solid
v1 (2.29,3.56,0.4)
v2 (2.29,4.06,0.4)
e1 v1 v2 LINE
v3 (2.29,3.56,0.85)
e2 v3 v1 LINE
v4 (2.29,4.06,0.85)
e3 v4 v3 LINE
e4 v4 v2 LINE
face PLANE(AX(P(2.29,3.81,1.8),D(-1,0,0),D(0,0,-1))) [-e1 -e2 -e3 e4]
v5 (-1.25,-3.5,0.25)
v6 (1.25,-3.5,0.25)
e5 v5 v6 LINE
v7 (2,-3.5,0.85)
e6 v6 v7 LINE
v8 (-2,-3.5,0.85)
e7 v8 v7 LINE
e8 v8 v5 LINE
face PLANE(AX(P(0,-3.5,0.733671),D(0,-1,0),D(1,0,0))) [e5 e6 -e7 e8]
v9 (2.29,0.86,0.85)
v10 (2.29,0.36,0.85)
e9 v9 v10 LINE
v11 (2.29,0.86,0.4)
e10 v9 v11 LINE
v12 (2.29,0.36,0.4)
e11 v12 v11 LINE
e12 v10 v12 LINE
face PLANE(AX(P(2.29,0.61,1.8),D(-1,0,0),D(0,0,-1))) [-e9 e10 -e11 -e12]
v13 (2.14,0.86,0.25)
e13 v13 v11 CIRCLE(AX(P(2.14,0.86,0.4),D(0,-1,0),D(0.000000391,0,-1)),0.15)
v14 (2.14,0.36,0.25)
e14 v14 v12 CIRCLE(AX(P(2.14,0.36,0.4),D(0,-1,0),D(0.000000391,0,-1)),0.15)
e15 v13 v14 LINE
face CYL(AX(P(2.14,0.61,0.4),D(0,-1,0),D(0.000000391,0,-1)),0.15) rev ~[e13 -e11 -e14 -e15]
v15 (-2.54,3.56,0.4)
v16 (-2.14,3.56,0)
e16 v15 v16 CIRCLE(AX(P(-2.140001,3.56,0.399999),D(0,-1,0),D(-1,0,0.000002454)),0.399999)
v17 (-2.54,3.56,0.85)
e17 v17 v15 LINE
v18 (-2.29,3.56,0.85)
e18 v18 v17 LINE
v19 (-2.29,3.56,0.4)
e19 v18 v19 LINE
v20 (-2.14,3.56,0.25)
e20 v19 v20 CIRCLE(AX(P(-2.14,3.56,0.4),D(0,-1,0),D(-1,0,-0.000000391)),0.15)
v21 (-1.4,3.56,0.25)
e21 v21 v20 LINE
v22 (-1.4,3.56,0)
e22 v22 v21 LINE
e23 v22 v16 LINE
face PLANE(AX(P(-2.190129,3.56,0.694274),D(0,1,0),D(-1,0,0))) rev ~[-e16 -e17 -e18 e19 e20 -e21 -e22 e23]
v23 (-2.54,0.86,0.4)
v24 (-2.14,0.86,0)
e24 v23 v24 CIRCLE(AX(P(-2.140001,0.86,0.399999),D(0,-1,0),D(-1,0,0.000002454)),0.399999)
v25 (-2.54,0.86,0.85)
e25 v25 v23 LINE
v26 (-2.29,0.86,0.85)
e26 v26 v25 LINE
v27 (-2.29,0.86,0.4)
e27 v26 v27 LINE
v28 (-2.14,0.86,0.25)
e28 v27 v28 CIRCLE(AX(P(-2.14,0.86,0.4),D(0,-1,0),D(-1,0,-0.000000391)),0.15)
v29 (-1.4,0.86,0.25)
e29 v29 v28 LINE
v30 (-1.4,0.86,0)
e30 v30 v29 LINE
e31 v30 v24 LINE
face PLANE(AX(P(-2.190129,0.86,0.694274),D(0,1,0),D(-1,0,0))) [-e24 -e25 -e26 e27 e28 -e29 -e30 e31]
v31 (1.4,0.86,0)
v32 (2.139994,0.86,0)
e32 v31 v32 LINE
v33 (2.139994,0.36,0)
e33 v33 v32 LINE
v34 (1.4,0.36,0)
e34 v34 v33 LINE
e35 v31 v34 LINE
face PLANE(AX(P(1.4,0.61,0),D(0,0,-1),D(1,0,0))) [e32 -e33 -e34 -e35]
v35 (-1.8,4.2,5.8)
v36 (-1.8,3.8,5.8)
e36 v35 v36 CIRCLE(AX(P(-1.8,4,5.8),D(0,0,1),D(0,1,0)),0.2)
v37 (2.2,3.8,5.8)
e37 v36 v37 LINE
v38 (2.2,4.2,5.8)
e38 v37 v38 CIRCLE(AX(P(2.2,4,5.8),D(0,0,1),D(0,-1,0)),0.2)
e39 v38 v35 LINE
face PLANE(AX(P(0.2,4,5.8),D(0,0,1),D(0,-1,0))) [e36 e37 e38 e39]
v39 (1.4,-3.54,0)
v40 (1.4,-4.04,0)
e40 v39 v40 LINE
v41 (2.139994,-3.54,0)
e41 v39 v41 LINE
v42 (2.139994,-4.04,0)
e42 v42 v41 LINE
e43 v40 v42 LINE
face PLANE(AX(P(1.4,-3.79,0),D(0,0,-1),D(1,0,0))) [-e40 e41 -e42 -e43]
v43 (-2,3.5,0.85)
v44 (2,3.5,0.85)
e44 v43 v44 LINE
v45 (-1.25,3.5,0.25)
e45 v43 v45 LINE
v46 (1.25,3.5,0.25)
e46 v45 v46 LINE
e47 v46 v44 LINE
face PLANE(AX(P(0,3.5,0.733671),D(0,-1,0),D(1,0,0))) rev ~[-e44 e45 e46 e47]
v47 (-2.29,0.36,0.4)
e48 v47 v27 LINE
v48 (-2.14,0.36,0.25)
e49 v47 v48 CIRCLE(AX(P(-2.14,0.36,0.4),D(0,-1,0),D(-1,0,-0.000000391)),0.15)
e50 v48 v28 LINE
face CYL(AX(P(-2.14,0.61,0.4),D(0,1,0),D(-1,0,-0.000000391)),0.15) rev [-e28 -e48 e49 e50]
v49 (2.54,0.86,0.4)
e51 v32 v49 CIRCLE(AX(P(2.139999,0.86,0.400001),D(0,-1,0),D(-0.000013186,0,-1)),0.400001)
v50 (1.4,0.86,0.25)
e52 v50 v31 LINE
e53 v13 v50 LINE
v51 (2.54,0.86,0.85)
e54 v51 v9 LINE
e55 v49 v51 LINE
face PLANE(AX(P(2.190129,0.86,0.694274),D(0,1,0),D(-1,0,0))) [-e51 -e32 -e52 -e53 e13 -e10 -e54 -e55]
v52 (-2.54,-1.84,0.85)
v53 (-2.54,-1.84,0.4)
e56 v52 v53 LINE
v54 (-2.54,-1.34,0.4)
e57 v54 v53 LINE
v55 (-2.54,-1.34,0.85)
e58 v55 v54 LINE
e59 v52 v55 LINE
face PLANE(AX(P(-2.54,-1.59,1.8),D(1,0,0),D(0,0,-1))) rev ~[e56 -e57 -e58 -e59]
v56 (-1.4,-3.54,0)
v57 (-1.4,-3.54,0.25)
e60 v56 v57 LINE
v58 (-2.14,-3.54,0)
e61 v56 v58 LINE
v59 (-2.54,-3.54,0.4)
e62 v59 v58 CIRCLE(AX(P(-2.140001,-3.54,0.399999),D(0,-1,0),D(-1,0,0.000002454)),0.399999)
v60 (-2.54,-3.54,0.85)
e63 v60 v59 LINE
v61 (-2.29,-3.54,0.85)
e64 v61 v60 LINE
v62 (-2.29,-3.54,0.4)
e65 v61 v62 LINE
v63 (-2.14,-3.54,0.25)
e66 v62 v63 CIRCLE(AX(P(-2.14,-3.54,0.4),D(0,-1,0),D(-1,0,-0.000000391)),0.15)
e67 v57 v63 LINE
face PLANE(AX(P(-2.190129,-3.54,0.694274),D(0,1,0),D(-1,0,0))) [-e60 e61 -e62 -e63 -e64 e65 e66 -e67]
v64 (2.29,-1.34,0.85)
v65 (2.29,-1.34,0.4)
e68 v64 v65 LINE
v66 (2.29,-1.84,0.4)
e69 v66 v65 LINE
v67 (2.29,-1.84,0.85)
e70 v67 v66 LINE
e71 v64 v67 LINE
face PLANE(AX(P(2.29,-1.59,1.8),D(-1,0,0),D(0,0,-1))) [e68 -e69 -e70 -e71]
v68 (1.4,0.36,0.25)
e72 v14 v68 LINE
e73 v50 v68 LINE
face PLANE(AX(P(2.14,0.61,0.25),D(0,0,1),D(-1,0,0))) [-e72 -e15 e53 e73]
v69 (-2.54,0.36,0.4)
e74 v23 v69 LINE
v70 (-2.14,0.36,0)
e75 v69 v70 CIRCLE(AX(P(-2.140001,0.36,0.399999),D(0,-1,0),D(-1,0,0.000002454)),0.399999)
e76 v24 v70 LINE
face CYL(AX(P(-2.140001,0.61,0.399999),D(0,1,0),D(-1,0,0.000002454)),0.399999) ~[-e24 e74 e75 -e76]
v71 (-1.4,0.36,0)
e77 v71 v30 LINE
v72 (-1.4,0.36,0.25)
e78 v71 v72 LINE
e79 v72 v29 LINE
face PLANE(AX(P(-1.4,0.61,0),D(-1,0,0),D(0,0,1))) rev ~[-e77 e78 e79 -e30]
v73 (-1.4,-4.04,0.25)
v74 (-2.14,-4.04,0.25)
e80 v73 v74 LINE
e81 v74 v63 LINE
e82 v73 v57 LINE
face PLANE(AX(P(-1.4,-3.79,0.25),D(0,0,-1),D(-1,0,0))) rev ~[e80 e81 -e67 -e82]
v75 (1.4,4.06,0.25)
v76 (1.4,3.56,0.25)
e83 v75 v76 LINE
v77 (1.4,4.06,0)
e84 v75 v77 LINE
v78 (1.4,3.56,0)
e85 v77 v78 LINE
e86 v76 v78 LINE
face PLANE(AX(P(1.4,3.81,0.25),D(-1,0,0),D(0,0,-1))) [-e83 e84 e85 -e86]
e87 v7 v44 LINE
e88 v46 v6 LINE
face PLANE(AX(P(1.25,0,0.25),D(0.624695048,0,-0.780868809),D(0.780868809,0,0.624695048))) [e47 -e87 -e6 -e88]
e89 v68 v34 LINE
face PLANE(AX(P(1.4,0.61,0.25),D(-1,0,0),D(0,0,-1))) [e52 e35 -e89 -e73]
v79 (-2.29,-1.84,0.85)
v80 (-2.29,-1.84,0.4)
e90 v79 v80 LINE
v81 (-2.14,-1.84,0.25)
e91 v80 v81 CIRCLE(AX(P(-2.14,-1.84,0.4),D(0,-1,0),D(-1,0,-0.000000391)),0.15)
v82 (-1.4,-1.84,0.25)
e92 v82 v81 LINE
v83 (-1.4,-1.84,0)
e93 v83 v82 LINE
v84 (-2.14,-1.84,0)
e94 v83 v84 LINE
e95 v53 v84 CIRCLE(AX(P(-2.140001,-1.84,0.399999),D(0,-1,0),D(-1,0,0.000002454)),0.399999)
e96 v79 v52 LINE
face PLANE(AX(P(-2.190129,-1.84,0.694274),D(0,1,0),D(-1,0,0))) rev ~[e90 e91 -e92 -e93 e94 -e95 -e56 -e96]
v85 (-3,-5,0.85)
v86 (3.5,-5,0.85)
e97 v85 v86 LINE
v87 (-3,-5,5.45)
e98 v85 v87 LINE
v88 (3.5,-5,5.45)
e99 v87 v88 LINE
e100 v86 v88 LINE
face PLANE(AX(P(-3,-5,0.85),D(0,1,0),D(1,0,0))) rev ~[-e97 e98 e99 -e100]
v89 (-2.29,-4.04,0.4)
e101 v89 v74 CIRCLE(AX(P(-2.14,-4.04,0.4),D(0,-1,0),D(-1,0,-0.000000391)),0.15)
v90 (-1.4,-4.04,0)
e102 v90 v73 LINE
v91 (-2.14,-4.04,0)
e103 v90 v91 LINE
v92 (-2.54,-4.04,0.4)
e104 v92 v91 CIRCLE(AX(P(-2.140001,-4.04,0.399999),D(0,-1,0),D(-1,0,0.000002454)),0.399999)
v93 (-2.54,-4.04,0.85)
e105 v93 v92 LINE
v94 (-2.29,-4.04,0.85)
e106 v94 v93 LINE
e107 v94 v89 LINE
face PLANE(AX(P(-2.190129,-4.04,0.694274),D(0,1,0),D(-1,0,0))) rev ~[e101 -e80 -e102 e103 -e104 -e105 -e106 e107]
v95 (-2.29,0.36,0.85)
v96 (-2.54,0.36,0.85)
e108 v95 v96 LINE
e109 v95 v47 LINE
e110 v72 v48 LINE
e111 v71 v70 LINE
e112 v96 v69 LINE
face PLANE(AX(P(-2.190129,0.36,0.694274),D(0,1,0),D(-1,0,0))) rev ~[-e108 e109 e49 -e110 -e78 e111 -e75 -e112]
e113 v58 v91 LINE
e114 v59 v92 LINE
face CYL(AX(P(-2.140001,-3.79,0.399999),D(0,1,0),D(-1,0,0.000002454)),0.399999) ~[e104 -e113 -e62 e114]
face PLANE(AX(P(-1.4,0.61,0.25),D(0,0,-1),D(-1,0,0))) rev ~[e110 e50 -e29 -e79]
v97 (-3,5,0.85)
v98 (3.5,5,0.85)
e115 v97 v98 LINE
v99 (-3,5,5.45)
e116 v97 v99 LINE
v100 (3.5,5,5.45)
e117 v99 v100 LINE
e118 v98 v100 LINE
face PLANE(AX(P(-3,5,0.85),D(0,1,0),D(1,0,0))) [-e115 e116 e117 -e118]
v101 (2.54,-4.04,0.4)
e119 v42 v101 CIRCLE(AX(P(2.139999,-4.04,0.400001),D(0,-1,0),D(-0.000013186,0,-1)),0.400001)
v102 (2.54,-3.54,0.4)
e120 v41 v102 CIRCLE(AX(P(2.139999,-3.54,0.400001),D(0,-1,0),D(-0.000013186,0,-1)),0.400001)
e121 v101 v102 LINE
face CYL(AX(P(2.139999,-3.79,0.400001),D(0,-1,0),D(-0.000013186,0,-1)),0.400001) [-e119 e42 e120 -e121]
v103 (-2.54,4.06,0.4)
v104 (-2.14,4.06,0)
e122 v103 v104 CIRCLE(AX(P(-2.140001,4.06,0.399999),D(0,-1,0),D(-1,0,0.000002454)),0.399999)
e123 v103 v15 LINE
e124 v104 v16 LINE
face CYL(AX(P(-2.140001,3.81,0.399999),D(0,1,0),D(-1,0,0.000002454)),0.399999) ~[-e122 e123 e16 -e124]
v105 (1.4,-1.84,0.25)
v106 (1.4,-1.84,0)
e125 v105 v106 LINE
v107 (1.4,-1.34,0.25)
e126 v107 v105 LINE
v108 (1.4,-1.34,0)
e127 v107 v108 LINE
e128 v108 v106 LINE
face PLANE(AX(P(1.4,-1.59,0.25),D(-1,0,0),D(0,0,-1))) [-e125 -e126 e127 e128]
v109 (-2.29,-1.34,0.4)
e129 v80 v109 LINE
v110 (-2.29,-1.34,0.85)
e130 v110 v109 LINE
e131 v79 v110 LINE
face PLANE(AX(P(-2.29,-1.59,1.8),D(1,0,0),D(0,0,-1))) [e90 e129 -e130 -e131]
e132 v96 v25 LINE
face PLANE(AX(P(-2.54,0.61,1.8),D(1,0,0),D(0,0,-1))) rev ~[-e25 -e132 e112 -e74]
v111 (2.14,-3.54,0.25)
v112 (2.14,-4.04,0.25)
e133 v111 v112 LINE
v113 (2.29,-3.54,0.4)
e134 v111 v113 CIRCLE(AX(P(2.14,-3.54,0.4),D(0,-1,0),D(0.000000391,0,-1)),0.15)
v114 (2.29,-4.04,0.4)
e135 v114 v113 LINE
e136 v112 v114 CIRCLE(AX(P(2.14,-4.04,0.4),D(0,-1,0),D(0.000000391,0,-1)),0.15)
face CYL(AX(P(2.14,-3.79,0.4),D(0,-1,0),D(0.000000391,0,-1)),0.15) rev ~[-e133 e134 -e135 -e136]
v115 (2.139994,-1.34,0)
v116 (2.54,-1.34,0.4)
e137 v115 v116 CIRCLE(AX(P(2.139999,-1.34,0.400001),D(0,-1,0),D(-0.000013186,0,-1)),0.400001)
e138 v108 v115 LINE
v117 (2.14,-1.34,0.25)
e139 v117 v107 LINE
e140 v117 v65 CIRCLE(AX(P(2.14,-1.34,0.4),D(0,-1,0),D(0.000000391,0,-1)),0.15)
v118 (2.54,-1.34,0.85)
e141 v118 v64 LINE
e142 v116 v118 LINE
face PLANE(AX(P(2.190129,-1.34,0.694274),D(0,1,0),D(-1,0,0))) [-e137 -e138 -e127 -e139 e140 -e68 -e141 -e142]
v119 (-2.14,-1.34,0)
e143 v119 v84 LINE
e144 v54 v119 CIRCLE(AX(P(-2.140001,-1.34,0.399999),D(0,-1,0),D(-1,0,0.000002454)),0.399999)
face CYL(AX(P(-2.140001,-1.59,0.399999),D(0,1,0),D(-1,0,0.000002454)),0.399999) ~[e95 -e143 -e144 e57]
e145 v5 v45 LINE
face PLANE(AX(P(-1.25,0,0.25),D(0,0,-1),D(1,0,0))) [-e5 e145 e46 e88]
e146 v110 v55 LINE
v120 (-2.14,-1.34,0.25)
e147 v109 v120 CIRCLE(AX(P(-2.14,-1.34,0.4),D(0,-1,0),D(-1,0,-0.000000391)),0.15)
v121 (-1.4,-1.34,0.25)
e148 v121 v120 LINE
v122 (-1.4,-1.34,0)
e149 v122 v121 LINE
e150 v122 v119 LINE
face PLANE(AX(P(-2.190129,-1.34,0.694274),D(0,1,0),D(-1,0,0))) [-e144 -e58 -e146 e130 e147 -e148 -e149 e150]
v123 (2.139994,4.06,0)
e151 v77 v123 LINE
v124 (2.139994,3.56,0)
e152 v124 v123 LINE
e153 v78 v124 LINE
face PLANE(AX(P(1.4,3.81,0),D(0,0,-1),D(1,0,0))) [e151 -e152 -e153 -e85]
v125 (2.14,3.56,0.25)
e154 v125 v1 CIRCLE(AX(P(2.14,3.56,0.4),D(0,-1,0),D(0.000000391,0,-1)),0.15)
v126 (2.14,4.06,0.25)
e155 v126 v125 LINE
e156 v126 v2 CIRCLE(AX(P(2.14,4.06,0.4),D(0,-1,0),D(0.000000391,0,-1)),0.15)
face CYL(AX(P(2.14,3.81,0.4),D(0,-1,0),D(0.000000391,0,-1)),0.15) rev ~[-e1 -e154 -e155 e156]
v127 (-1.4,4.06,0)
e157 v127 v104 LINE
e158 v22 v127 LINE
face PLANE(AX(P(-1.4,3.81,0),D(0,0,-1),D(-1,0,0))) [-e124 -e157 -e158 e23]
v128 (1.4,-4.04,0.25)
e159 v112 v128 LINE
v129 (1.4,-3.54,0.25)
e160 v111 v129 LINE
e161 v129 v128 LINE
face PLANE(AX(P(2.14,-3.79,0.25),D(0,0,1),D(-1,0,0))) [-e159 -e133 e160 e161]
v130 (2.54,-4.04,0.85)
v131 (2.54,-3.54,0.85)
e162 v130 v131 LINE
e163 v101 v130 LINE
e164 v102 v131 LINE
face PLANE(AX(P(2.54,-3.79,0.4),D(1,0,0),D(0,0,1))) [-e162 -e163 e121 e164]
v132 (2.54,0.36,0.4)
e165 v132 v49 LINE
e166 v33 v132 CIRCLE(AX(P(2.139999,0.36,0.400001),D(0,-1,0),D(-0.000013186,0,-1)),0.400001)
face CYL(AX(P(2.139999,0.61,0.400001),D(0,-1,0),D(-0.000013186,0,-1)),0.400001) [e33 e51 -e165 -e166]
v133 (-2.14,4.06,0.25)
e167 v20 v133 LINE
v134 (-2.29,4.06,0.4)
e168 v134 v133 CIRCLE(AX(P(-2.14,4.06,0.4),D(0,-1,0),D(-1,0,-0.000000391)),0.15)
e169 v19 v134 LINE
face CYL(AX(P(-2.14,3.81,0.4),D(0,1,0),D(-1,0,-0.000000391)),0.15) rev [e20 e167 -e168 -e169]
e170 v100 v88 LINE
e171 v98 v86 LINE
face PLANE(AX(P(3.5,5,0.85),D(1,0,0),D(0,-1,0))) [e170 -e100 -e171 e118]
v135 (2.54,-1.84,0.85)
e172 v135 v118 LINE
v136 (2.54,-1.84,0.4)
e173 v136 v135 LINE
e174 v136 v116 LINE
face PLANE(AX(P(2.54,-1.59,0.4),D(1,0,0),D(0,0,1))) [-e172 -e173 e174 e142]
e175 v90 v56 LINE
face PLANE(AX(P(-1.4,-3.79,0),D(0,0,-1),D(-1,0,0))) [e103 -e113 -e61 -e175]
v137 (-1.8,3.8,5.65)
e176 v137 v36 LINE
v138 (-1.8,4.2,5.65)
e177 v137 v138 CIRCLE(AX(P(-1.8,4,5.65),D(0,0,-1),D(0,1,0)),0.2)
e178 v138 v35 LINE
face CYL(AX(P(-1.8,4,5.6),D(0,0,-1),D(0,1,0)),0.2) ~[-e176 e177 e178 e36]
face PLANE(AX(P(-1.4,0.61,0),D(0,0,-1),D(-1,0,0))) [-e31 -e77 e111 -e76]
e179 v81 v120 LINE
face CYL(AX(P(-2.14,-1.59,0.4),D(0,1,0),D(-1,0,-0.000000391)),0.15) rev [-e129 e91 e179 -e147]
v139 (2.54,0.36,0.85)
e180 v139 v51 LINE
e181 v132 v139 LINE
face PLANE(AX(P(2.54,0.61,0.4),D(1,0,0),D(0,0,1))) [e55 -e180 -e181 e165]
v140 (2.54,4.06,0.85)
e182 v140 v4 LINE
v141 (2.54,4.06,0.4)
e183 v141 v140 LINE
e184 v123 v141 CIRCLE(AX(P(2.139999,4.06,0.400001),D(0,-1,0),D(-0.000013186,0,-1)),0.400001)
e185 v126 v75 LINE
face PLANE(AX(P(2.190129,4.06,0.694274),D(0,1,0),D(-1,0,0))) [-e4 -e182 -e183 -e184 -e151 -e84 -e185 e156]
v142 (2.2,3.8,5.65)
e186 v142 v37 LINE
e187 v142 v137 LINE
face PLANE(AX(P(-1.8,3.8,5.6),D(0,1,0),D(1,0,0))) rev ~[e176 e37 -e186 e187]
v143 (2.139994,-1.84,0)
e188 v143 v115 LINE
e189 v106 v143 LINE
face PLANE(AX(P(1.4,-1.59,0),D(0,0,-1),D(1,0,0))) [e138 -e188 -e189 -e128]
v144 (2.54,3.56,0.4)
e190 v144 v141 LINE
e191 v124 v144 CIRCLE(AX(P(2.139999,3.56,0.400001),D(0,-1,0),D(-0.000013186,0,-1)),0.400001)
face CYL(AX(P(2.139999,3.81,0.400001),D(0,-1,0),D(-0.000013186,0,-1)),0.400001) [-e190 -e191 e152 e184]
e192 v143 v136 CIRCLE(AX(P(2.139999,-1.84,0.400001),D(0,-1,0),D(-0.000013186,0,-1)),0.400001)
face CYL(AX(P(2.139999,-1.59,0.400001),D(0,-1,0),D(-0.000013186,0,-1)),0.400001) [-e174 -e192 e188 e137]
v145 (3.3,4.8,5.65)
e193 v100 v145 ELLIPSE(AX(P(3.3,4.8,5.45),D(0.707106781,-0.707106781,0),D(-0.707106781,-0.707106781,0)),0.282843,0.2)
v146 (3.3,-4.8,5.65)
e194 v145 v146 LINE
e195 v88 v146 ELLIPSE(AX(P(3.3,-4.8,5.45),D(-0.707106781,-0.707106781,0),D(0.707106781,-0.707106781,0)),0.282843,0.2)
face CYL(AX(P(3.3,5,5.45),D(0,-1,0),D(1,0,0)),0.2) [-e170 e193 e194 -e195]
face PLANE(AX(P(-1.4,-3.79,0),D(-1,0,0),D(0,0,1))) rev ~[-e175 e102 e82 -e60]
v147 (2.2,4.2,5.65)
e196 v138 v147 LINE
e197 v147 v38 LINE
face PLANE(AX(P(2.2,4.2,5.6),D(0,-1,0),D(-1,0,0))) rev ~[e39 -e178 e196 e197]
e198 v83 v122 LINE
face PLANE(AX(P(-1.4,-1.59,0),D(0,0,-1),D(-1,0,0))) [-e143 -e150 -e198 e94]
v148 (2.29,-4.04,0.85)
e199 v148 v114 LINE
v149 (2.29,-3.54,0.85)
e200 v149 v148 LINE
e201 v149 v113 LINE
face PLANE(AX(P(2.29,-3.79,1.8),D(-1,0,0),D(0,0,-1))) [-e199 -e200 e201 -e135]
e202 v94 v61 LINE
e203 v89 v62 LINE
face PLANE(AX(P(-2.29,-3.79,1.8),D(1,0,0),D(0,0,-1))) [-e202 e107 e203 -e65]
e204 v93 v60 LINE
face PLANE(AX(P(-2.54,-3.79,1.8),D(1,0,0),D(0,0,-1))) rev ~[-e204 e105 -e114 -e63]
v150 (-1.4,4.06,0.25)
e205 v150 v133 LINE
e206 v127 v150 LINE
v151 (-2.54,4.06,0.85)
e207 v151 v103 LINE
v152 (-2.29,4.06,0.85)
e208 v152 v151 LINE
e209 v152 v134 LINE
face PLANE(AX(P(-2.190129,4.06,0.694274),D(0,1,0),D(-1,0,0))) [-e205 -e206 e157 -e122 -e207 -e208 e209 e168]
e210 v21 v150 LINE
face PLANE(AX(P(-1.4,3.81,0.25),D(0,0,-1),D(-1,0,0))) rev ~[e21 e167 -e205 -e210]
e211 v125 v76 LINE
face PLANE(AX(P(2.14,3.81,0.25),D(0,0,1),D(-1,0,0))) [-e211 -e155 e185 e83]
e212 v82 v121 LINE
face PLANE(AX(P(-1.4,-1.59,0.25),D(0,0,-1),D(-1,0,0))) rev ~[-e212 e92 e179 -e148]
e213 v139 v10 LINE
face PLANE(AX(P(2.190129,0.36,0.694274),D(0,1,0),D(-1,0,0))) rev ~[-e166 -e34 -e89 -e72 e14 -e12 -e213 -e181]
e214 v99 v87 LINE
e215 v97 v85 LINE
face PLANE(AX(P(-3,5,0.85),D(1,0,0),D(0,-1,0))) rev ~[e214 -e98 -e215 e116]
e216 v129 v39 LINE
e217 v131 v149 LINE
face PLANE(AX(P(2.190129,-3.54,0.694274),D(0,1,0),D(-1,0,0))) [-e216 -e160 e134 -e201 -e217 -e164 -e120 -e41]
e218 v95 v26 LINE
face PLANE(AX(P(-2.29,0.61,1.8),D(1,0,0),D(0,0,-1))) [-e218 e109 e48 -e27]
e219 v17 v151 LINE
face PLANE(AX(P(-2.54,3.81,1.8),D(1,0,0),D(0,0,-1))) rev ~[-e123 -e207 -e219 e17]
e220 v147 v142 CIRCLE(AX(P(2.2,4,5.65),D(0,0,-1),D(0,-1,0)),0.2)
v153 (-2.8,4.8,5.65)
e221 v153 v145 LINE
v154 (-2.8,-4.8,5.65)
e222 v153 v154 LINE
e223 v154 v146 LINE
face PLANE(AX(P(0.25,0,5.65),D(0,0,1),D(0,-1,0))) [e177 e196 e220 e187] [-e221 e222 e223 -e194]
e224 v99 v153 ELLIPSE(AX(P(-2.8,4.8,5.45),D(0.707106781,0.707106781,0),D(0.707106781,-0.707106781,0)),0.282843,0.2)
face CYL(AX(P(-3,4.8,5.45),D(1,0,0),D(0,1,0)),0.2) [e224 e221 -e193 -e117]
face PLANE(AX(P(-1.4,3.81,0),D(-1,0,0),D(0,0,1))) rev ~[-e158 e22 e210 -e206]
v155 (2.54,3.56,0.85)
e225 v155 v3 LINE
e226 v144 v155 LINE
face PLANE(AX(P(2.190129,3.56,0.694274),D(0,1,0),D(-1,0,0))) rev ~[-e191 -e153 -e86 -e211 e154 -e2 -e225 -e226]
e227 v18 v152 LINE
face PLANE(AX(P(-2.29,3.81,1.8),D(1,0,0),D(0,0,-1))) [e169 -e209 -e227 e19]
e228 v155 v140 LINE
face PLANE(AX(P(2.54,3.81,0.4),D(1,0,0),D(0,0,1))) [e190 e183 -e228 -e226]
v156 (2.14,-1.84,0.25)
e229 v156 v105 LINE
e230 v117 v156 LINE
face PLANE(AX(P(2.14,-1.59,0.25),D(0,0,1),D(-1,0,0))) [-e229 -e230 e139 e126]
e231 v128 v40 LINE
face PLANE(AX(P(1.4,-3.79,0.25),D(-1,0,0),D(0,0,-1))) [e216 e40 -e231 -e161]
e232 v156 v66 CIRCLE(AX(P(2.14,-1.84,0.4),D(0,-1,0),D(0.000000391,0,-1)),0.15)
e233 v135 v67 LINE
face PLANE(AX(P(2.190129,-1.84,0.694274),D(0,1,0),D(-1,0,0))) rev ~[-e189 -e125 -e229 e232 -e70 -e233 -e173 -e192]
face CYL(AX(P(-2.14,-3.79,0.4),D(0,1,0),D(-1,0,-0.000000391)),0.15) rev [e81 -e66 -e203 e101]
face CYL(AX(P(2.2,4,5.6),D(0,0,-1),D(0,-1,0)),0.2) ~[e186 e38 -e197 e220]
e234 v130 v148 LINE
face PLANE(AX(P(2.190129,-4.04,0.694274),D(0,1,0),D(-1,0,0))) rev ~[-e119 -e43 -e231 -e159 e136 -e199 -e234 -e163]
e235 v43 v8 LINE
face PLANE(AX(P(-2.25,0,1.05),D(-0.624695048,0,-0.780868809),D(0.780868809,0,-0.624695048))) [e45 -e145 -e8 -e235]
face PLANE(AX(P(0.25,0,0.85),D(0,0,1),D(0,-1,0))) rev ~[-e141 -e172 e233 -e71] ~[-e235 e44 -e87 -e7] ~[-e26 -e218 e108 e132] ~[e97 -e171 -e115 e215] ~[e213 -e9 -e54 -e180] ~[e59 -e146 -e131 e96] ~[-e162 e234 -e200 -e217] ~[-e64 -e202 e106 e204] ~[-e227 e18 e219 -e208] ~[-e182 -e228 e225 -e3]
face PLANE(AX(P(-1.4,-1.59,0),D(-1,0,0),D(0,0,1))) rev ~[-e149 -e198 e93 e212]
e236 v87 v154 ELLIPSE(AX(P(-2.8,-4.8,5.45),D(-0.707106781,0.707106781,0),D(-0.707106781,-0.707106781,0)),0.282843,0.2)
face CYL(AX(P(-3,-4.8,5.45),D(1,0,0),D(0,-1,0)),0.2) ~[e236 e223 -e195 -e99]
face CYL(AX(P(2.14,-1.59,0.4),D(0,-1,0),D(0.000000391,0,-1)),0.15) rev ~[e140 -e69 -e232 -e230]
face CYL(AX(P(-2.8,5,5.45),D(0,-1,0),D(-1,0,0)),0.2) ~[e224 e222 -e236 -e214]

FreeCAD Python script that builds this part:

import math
import FreeCAD as App
import Part
import Sketcher

V = App.Vector


def edges_at(feature, points):
    """Names of the edges that pass closest to the given points."""
    edges = feature.Shape.Edges
    near = lambda p: min(range(len(edges)), key=lambda i: edges[i].distToShape(Part.Vertex(*p))[0])
    return sorted({f"Edge{near(p) + 1}" for p in points})


def add_polygon(sketch, points):
    """Adds a closed chain of lines whose ends are joined by coincident constraints."""
    first, n = sketch.GeometryCount, len(points)
    for a, b in zip(points, points[1:] + points[:1]):
        sketch.addGeometry(Part.LineSegment(App.Vector(*a, 0), App.Vector(*b, 0)), False)
    for i in range(n):
        sketch.addConstraint(Sketcher.Constraint("Coincident", first + i, 2, first + (i + 1) % n, 1))

doc = App.newDocument("Part")
body = doc.addObject("PartDesign::Body", "Body")
body.AllowCompound = True

sketch1 = doc.addObject("Sketcher::SketchObject", "Sketch")
body.addObject(sketch1)
sketch1.AttachmentSupport = (doc.XZ_Plane, [""])
sketch1.MapMode = "FlatFace"
sketch1.AttachmentOffset = App.Placement(V(0, 0, 1.59), App.Rotation())
sketch1.addGeometry(Part.LineSegment(V(-2.29, 1.8, 0), V(-2.54, 1.8, 0)), False)
sketch1.addGeometry(Part.LineSegment(V(-2.54, 1.8, 0), V(-2.54, 0.4, 0)), False)
sketch1.addGeometry(Part.ArcOfCircle(Part.Circle(V(-2.14, 0.4, 0), V(0, 0, 1), 0.4), math.radians(180), math.radians(270)), False)
sketch1.addGeometry(Part.LineSegment(V(-2.14, 0, 0), V(-1.4, 0, 0)), False)
sketch1.addGeometry(Part.LineSegment(V(-1.4, 0, 0), V(-1.4, 0.25, 0)), False)
sketch1.addGeometry(Part.LineSegment(V(-1.4, 0.25, 0), V(-2.14, 0.25, 0)), False)
sketch1.addGeometry(Part.ArcOfCircle(Part.Circle(V(-2.14, 0.4, 0), V(0, 0, 1), 0.15), math.radians(-180), math.radians(-90)), False)
sketch1.addGeometry(Part.LineSegment(V(-2.29, 0.4, 0), V(-2.29, 1.8, 0)), False)
sketch1.addGeometry(Part.ArcOfCircle(Part.Circle(V(2.14, 0.4, 0), V(0, 0, 1), 0.15), math.radians(-90), math.radians(0)), False)
sketch1.addGeometry(Part.LineSegment(V(2.14, 0.25, 0), V(1.4, 0.25, 0)), False)
sketch1.addGeometry(Part.LineSegment(V(1.4, 0.25, 0), V(1.4, 0, 0)), False)
sketch1.addGeometry(Part.LineSegment(V(1.4, 0, 0), V(2.14, 0, 0)), False)
sketch1.addGeometry(Part.ArcOfCircle(Part.Circle(V(2.14, 0.4, 0), V(0, 0, 1), 0.4), math.radians(-90), math.radians(0)), False)
sketch1.addGeometry(Part.LineSegment(V(2.54, 0.4, 0), V(2.54, 1.8, 0)), False)
sketch1.addGeometry(Part.LineSegment(V(2.54, 1.8, 0), V(2.29, 1.8, 0)), False)
sketch1.addGeometry(Part.LineSegment(V(2.29, 1.8, 0), V(2.29, 0.4, 0)), False)
sketch1.addConstraint(Sketcher.Constraint("Coincident", 0, 2, 1, 1))
sketch1.addConstraint(Sketcher.Constraint("Coincident", 1, 2, 2, 1))
sketch1.addConstraint(Sketcher.Constraint("Coincident", 2, 2, 3, 1))
sketch1.addConstraint(Sketcher.Constraint("Coincident", 3, 2, 4, 1))
sketch1.addConstraint(Sketcher.Constraint("Coincident", 4, 2, 5, 1))
sketch1.addConstraint(Sketcher.Constraint("Tangent", 5, 2, 6, 2))
sketch1.addConstraint(Sketcher.Constraint("Tangent", 6, 1, 7, 1))
sketch1.addConstraint(Sketcher.Constraint("Coincident", 7, 2, 0, 1))
sketch1.addConstraint(Sketcher.Constraint("Tangent", 8, 1, 9, 1))
sketch1.addConstraint(Sketcher.Constraint("Coincident", 9, 2, 10, 1))
sketch1.addConstraint(Sketcher.Constraint("Coincident", 10, 2, 11, 1))
sketch1.addConstraint(Sketcher.Constraint("Coincident", 11, 2, 12, 1))
sketch1.addConstraint(Sketcher.Constraint("Tangent", 12, 2, 13, 1))
sketch1.addConstraint(Sketcher.Constraint("Coincident", 13, 2, 14, 1))
sketch1.addConstraint(Sketcher.Constraint("Coincident", 14, 2, 15, 1))
sketch1.addConstraint(Sketcher.Constraint("Tangent", 15, 2, 8, 2))
sketch1.addConstraint(Sketcher.Constraint("Horizontal", 0))
sketch1.addConstraint(Sketcher.Constraint("Vertical", 1))
sketch1.addConstraint(Sketcher.Constraint("Horizontal", 3))
sketch1.addConstraint(Sketcher.Constraint("Vertical", 4))
sketch1.addConstraint(Sketcher.Constraint("Horizontal", 5))
sketch1.addConstraint(Sketcher.Constraint("Vertical", 7))
sketch1.addConstraint(Sketcher.Constraint("Horizontal", 9))
sketch1.addConstraint(Sketcher.Constraint("Vertical", 10))
sketch1.addConstraint(Sketcher.Constraint("Horizontal", 11))
sketch1.addConstraint(Sketcher.Constraint("Vertical", 13))
sketch1.addConstraint(Sketcher.Constraint("Horizontal", 14))
sketch1.addConstraint(Sketcher.Constraint("Vertical", 15))
sketch1.addConstraint(Sketcher.Constraint("Coincident", 6, 3, 2, 3))
sketch1.addConstraint(Sketcher.Constraint("Coincident", 12, 3, 8, 3))
sketch1.addConstraint(Sketcher.Constraint("Equal", 6, 8))
sketch1.addConstraint(Sketcher.Constraint("Equal", 2, 12))
sketch1.addConstraint(Sketcher.Constraint("Symmetric", 3, 2, 10, 2, -1, 1))
sketch1.addConstraint(Sketcher.Constraint("Symmetric", 2, 3, 8, 3, -2))
sketch1.addConstraint(Sketcher.Constraint("Horizontal", 12, 3, 1, 2))
sketch1.addConstraint(Sketcher.Constraint("Horizontal", 7, 2, 13, 2))
sketch1.addConstraint(Sketcher.Constraint("Vertical", 6, 3, 2, 2))
sketch1.addConstraint(Sketcher.Constraint("Radius", 2, 0.399999))
sketch1.addConstraint(Sketcher.Constraint("Radius", 6, 0.15))
sketch1.addConstraint(Sketcher.Constraint("DistanceY", 1, 2, 1, 1, 1.4))
sketch1.addConstraint(Sketcher.Constraint("DistanceX", 3, 1, 3, 2, 0.74))
sketch1.addConstraint(Sketcher.Constraint("DistanceX", 3, 2, -1, 1, 1.4))
sketch1.addConstraint(Sketcher.Constraint("DistanceX", 11, 1, 11, 2, 0.739994))
pad1 = doc.addObject("PartDesign::Pad", "Pad")
body.addObject(pad1)
pad1.Profile = sketch1
pad1.Length = 0.5
pad1.Midplane = True
body2 = doc.addObject("PartDesign::Body", "Body001")
body2.AllowCompound = True

sketch2 = doc.addObject("Sketcher::SketchObject", "Sketch001")
body2.addObject(sketch2)
sketch2.AttachmentSupport = (doc.getObject("XZ_Plane001"), [""])
sketch2.MapMode = "FlatFace"
sketch2.AttachmentOffset = App.Placement(V(0, 0, 3.79), App.Rotation())
sketch2.addGeometry(Part.LineSegment(V(-2.29, 1.8, 0), V(-2.54, 1.8, 0)), False)
sketch2.addGeometry(Part.LineSegment(V(-2.54, 1.8, 0), V(-2.54, 0.4, 0)), False)
sketch2.addGeometry(Part.ArcOfCircle(Part.Circle(V(-2.14, 0.4, 0), V(0, 0, 1), 0.4), math.radians(180), math.radians(270)), False)
sketch2.addGeometry(Part.LineSegment(V(-2.14, 0, 0), V(-1.4, 0, 0)), False)
sketch2.addGeometry(Part.LineSegment(V(-1.4, 0, 0), V(-1.4, 0.25, 0)), False)
sketch2.addGeometry(Part.LineSegment(V(-1.4, 0.25, 0), V(-2.14, 0.25, 0)), False)
sketch2.addGeometry(Part.ArcOfCircle(Part.Circle(V(-2.14, 0.4, 0), V(0, 0, 1), 0.15), math.radians(-180), math.radians(-90)), False)
sketch2.addGeometry(Part.LineSegment(V(-2.29, 0.4, 0), V(-2.29, 1.8, 0)), False)
sketch2.addGeometry(Part.ArcOfCircle(Part.Circle(V(2.14, 0.4, 0), V(0, 0, 1), 0.15), math.radians(-90), math.radians(0)), False)
sketch2.addGeometry(Part.LineSegment(V(2.14, 0.25, 0), V(1.4, 0.25, 0)), False)
sketch2.addGeometry(Part.LineSegment(V(1.4, 0.25, 0), V(1.4, 0, 0)), False)
sketch2.addGeometry(Part.LineSegment(V(1.4, 0, 0), V(2.14, 0, 0)), False)
sketch2.addGeometry(Part.ArcOfCircle(Part.Circle(V(2.14, 0.4, 0), V(0, 0, 1), 0.4), math.radians(-90), math.radians(0)), False)
sketch2.addGeometry(Part.LineSegment(V(2.54, 0.4, 0), V(2.54, 1.8, 0)), False)
sketch2.addGeometry(Part.LineSegment(V(2.54, 1.8, 0), V(2.29, 1.8, 0)), False)
sketch2.addGeometry(Part.LineSegment(V(2.29, 1.8, 0), V(2.29, 0.4, 0)), False)
sketch2.addConstraint(Sketcher.Constraint("Coincident", 0, 2, 1, 1))
sketch2.addConstraint(Sketcher.Constraint("Coincident", 1, 2, 2, 1))
sketch2.addConstraint(Sketcher.Constraint("Coincident", 2, 2, 3, 1))
sketch2.addConstraint(Sketcher.Constraint("Coincident", 3, 2, 4, 1))
sketch2.addConstraint(Sketcher.Constraint("Coincident", 4, 2, 5, 1))
sketch2.addConstraint(Sketcher.Constraint("Tangent", 5, 2, 6, 2))
sketch2.addConstraint(Sketcher.Constraint("Tangent", 6, 1, 7, 1))
sketch2.addConstraint(Sketcher.Constraint("Coincident", 7, 2, 0, 1))
sketch2.addConstraint(Sketcher.Constraint("Tangent", 8, 1, 9, 1))
sketch2.addConstraint(Sketcher.Constraint("Coincident", 9, 2, 10, 1))
sketch2.addConstraint(Sketcher.Constraint("Coincident", 10, 2, 11, 1))
sketch2.addConstraint(Sketcher.Constraint("Coincident", 11, 2, 12, 1))
sketch2.addConstraint(Sketcher.Constraint("Tangent", 12, 2, 13, 1))
sketch2.addConstraint(Sketcher.Constraint("Coincident", 13, 2, 14, 1))
sketch2.addConstraint(Sketcher.Constraint("Coincident", 14, 2, 15, 1))
sketch2.addConstraint(Sketcher.Constraint("Tangent", 15, 2, 8, 2))
sketch2.addConstraint(Sketcher.Constraint("Horizontal", 0))
sketch2.addConstraint(Sketcher.Constraint("Vertical", 1))
sketch2.addConstraint(Sketcher.Constraint("Horizontal", 3))
sketch2.addConstraint(Sketcher.Constraint("Vertical", 4))
sketch2.addConstraint(Sketcher.Constraint("Horizontal", 5))
sketch2.addConstraint(Sketcher.Constraint("Vertical", 7))
sketch2.addConstraint(Sketcher.Constraint("Horizontal", 9))
sketch2.addConstraint(Sketcher.Constraint("Vertical", 10))
sketch2.addConstraint(Sketcher.Constraint("Horizontal", 11))
sketch2.addConstraint(Sketcher.Constraint("Vertical", 13))
sketch2.addConstraint(Sketcher.Constraint("Horizontal", 14))
sketch2.addConstraint(Sketcher.Constraint("Vertical", 15))
sketch2.addConstraint(Sketcher.Constraint("Coincident", 6, 3, 2, 3))
sketch2.addConstraint(Sketcher.Constraint("Coincident", 12, 3, 8, 3))
sketch2.addConstraint(Sketcher.Constraint("Equal", 6, 8))
sketch2.addConstraint(Sketcher.Constraint("Equal", 2, 12))
sketch2.addConstraint(Sketcher.Constraint("Symmetric", 3, 2, 10, 2, -1, 1))
sketch2.addConstraint(Sketcher.Constraint("Symmetric", 2, 3, 8, 3, -2))
sketch2.addConstraint(Sketcher.Constraint("Horizontal", 12, 3, 1, 2))
sketch2.addConstraint(Sketcher.Constraint("Horizontal", 7, 2, 13, 2))
sketch2.addConstraint(Sketcher.Constraint("Vertical", 6, 3, 2, 2))
sketch2.addConstraint(Sketcher.Constraint("Radius", 2, 0.399999))
sketch2.addConstraint(Sketcher.Constraint("Radius", 6, 0.15))
sketch2.addConstraint(Sketcher.Constraint("DistanceY", 1, 2, 1, 1, 1.4))
sketch2.addConstraint(Sketcher.Constraint("DistanceX", 3, 1, 3, 2, 0.74))
sketch2.addConstraint(Sketcher.Constraint("DistanceX", 3, 2, -1, 1, 1.4))
sketch2.addConstraint(Sketcher.Constraint("DistanceX", 11, 1, 11, 2, 0.739994))
pad2 = doc.addObject("PartDesign::Pad", "Pad001")
body2.addObject(pad2)
pad2.Profile = sketch2
pad2.Length = 0.5
pad2.Midplane = True
body3 = doc.addObject("PartDesign::Body", "Body002")

sketch3 = doc.addObject("Sketcher::SketchObject", "Sketch002")
body3.addObject(sketch3)
sketch3.AttachmentSupport = (doc.getObject("XZ_Plane002"), [""])
sketch3.MapMode = "FlatFace"
add_polygon(sketch3, [(-1.2, 0.2), (1.2, 0.2), (2.2, 1.1), (-2.2, 1.1)])
sketch3.addConstraint(Sketcher.Constraint("Horizontal", 0))
sketch3.addConstraint(Sketcher.Constraint("Horizontal", 2))
sketch3.addConstraint(Sketcher.Constraint("Equal", 1, 3))
sketch3.addConstraint(Sketcher.Constraint("DistanceX", 0, 1, 0, 2, 2.5))
sketch3.addConstraint(Sketcher.Constraint("DistanceX", 2, 2, 2, 1, 4.5))
sketch3.addConstraint(Sketcher.Constraint("DistanceY", 0, 2, 1, 2, 0.8))
sketch3.addConstraint(Sketcher.Constraint("DistanceX", -1, 1, 0, 2, 1.25))
sketch3.addConstraint(Sketcher.Constraint("DistanceY", -1, 1, 0, 2, 0.25))
pad3 = doc.addObject("PartDesign::Pad", "Pad002")
body3.addObject(pad3)
pad3.Profile = sketch3
pad3.Length = 7
pad3.Midplane = True
body4 = doc.addObject("PartDesign::Body", "Body003")
body4.AllowCompound = True

sketch4 = doc.addObject("Sketcher::SketchObject", "Sketch003")
body4.addObject(sketch4)
sketch4.AttachmentSupport = (doc.getObject("XZ_Plane003"), [""])
sketch4.MapMode = "FlatFace"
sketch4.AttachmentOffset = App.Placement(V(0, 0, -0.61), App.Rotation())
sketch4.addGeometry(Part.LineSegment(V(-2.29, 1.8, 0), V(-2.54, 1.8, 0)), False)
sketch4.addGeometry(Part.LineSegment(V(-2.54, 1.8, 0), V(-2.54, 0.4, 0)), False)
sketch4.addGeometry(Part.ArcOfCircle(Part.Circle(V(-2.14, 0.4, 0), V(0, 0, 1), 0.4), math.radians(180), math.radians(270)), False)
sketch4.addGeometry(Part.LineSegment(V(-2.14, 0, 0), V(-1.4, 0, 0)), False)
sketch4.addGeometry(Part.LineSegment(V(-1.4, 0, 0), V(-1.4, 0.25, 0)), False)
sketch4.addGeometry(Part.LineSegment(V(-1.4, 0.25, 0), V(-2.14, 0.25, 0)), False)
sketch4.addGeometry(Part.ArcOfCircle(Part.Circle(V(-2.14, 0.4, 0), V(0, 0, 1), 0.15), math.radians(-180), math.radians(-90)), False)
sketch4.addGeometry(Part.LineSegment(V(-2.29, 0.4, 0), V(-2.29, 1.8, 0)), False)
sketch4.addGeometry(Part.ArcOfCircle(Part.Circle(V(2.14, 0.4, 0), V(0, 0, 1), 0.15), math.radians(-90), math.radians(0)), False)
sketch4.addGeometry(Part.LineSegment(V(2.14, 0.25, 0), V(1.4, 0.25, 0)), False)
sketch4.addGeometry(Part.LineSegment(V(1.4, 0.25, 0), V(1.4, 0, 0)), False)
sketch4.addGeometry(Part.LineSegment(V(1.4, 0, 0), V(2.14, 0, 0)), False)
sketch4.addGeometry(Part.ArcOfCircle(Part.Circle(V(2.14, 0.4, 0), V(0, 0, 1), 0.4), math.radians(-90), math.radians(0)), False)
sketch4.addGeometry(Part.LineSegment(V(2.54, 0.4, 0), V(2.54, 1.8, 0)), False)
sketch4.addGeometry(Part.LineSegment(V(2.54, 1.8, 0), V(2.29, 1.8, 0)), False)
sketch4.addGeometry(Part.LineSegment(V(2.29, 1.8, 0), V(2.29, 0.4, 0)), False)
sketch4.addConstraint(Sketcher.Constraint("Coincident", 0, 2, 1, 1))
sketch4.addConstraint(Sketcher.Constraint("Coincident", 1, 2, 2, 1))
sketch4.addConstraint(Sketcher.Constraint("Coincident", 2, 2, 3, 1))
sketch4.addConstraint(Sketcher.Constraint("Coincident", 3, 2, 4, 1))
sketch4.addConstraint(Sketcher.Constraint("Coincident", 4, 2, 5, 1))
sketch4.addConstraint(Sketcher.Constraint("Tangent", 5, 2, 6, 2))
sketch4.addConstraint(Sketcher.Constraint("Tangent", 6, 1, 7, 1))
sketch4.addConstraint(Sketcher.Constraint("Coincident", 7, 2, 0, 1))
sketch4.addConstraint(Sketcher.Constraint("Tangent", 8, 1, 9, 1))
sketch4.addConstraint(Sketcher.Constraint("Coincident", 9, 2, 10, 1))
sketch4.addConstraint(Sketcher.Constraint("Coincident", 10, 2, 11, 1))
sketch4.addConstraint(Sketcher.Constraint("Coincident", 11, 2, 12, 1))
sketch4.addConstraint(Sketcher.Constraint("Tangent", 12, 2, 13, 1))
sketch4.addConstraint(Sketcher.Constraint("Coincident", 13, 2, 14, 1))
sketch4.addConstraint(Sketcher.Constraint("Coincident", 14, 2, 15, 1))
sketch4.addConstraint(Sketcher.Constraint("Tangent", 15, 2, 8, 2))
sketch4.addConstraint(Sketcher.Constraint("Horizontal", 0))
sketch4.addConstraint(Sketcher.Constraint("Vertical", 1))
sketch4.addConstraint(Sketcher.Constraint("Horizontal", 3))
sketch4.addConstraint(Sketcher.Constraint("Vertical", 4))
sketch4.addConstraint(Sketcher.Constraint("Horizontal", 5))
sketch4.addConstraint(Sketcher.Constraint("Vertical", 7))
sketch4.addConstraint(Sketcher.Constraint("Horizontal", 9))
sketch4.addConstraint(Sketcher.Constraint("Vertical", 10))
sketch4.addConstraint(Sketcher.Constraint("Horizontal", 11))
sketch4.addConstraint(Sketcher.Constraint("Vertical", 13))
sketch4.addConstraint(Sketcher.Constraint("Horizontal", 14))
sketch4.addConstraint(Sketcher.Constraint("Vertical", 15))
sketch4.addConstraint(Sketcher.Constraint("Coincident", 6, 3, 2, 3))
sketch4.addConstraint(Sketcher.Constraint("Coincident", 12, 3, 8, 3))
sketch4.addConstraint(Sketcher.Constraint("Equal", 6, 8))
sketch4.addConstraint(Sketcher.Constraint("Equal", 2, 12))
sketch4.addConstraint(Sketcher.Constraint("Symmetric", 3, 2, 10, 2, -1, 1))
sketch4.addConstraint(Sketcher.Constraint("Symmetric", 2, 3, 8, 3, -2))
sketch4.addConstraint(Sketcher.Constraint("Horizontal", 12, 3, 1, 2))
sketch4.addConstraint(Sketcher.Constraint("Horizontal", 7, 2, 13, 2))
sketch4.addConstraint(Sketcher.Constraint("Vertical", 6, 3, 2, 2))
sketch4.addConstraint(Sketcher.Constraint("Radius", 2, 0.399999))
sketch4.addConstraint(Sketcher.Constraint("Radius", 6, 0.15))
sketch4.addConstraint(Sketcher.Constraint("DistanceY", 1, 2, 1, 1, 1.4))
sketch4.addConstraint(Sketcher.Constraint("DistanceX", 3, 1, 3, 2, 0.74))
sketch4.addConstraint(Sketcher.Constraint("DistanceX", 3, 2, -1, 1, 1.4))
sketch4.addConstraint(Sketcher.Constraint("DistanceX", 11, 1, 11, 2, 0.739994))
pad4 = doc.addObject("PartDesign::Pad", "Pad003")
body4.addObject(pad4)
pad4.Profile = sketch4
pad4.Length = 0.5
pad4.Midplane = True
body5 = doc.addObject("PartDesign::Body", "Body004")
body5.AllowCompound = True

sketch5 = doc.addObject("Sketcher::SketchObject", "Sketch004")
body5.addObject(sketch5)
sketch5.AttachmentSupport = (doc.getObject("XZ_Plane004"), [""])
sketch5.MapMode = "FlatFace"
sketch5.AttachmentOffset = App.Placement(V(0, 0, -3.81), App.Rotation())
sketch5.addGeometry(Part.LineSegment(V(-2.29, 1.8, 0), V(-2.54, 1.8, 0)), False)
sketch5.addGeometry(Part.LineSegment(V(-2.54, 1.8, 0), V(-2.54, 0.4, 0)), False)
sketch5.addGeometry(Part.ArcOfCircle(Part.Circle(V(-2.14, 0.4, 0), V(0, 0, 1), 0.4), math.radians(180), math.radians(270)), False)
sketch5.addGeometry(Part.LineSegment(V(-2.14, 0, 0), V(-1.4, 0, 0)), False)
sketch5.addGeometry(Part.LineSegment(V(-1.4, 0, 0), V(-1.4, 0.25, 0)), False)
sketch5.addGeometry(Part.LineSegment(V(-1.4, 0.25, 0), V(-2.14, 0.25, 0)), False)
sketch5.addGeometry(Part.ArcOfCircle(Part.Circle(V(-2.14, 0.4, 0), V(0, 0, 1), 0.15), math.radians(-180), math.radians(-90)), False)
sketch5.addGeometry(Part.LineSegment(V(-2.29, 0.4, 0), V(-2.29, 1.8, 0)), False)
sketch5.addGeometry(Part.ArcOfCircle(Part.Circle(V(2.14, 0.4, 0), V(0, 0, 1), 0.15), math.radians(-90), math.radians(0)), False)
sketch5.addGeometry(Part.LineSegment(V(2.14, 0.25, 0), V(1.4, 0.25, 0)), False)
sketch5.addGeometry(Part.LineSegment(V(1.4, 0.25, 0), V(1.4, 0, 0)), False)
sketch5.addGeometry(Part.LineSegment(V(1.4, 0, 0), V(2.14, 0, 0)), False)
sketch5.addGeometry(Part.ArcOfCircle(Part.Circle(V(2.14, 0.4, 0), V(0, 0, 1), 0.4), math.radians(-90), math.radians(0)), False)
sketch5.addGeometry(Part.LineSegment(V(2.54, 0.4, 0), V(2.54, 1.8, 0)), False)
sketch5.addGeometry(Part.LineSegment(V(2.54, 1.8, 0), V(2.29, 1.8, 0)), False)
sketch5.addGeometry(Part.LineSegment(V(2.29, 1.8, 0), V(2.29, 0.4, 0)), False)
sketch5.addConstraint(Sketcher.Constraint("Coincident", 0, 2, 1, 1))
sketch5.addConstraint(Sketcher.Constraint("Coincident", 1, 2, 2, 1))
sketch5.addConstraint(Sketcher.Constraint("Coincident", 2, 2, 3, 1))
sketch5.addConstraint(Sketcher.Constraint("Coincident", 3, 2, 4, 1))
sketch5.addConstraint(Sketcher.Constraint("Coincident", 4, 2, 5, 1))
sketch5.addConstraint(Sketcher.Constraint("Tangent", 5, 2, 6, 2))
sketch5.addConstraint(Sketcher.Constraint("Tangent", 6, 1, 7, 1))
sketch5.addConstraint(Sketcher.Constraint("Coincident", 7, 2, 0, 1))
sketch5.addConstraint(Sketcher.Constraint("Tangent", 8, 1, 9, 1))
sketch5.addConstraint(Sketcher.Constraint("Coincident", 9, 2, 10, 1))
sketch5.addConstraint(Sketcher.Constraint("Coincident", 10, 2, 11, 1))
sketch5.addConstraint(Sketcher.Constraint("Coincident", 11, 2, 12, 1))
sketch5.addConstraint(Sketcher.Constraint("Tangent", 12, 2, 13, 1))
sketch5.addConstraint(Sketcher.Constraint("Coincident", 13, 2, 14, 1))
sketch5.addConstraint(Sketcher.Constraint("Coincident", 14, 2, 15, 1))
sketch5.addConstraint(Sketcher.Constraint("Tangent", 15, 2, 8, 2))
sketch5.addConstraint(Sketcher.Constraint("Horizontal", 0))
sketch5.addConstraint(Sketcher.Constraint("Vertical", 1))
sketch5.addConstraint(Sketcher.Constraint("Horizontal", 3))
sketch5.addConstraint(Sketcher.Constraint("Vertical", 4))
sketch5.addConstraint(Sketcher.Constraint("Horizontal", 5))
sketch5.addConstraint(Sketcher.Constraint("Vertical", 7))
sketch5.addConstraint(Sketcher.Constraint("Horizontal", 9))
sketch5.addConstraint(Sketcher.Constraint("Vertical", 10))
sketch5.addConstraint(Sketcher.Constraint("Horizontal", 11))
sketch5.addConstraint(Sketcher.Constraint("Vertical", 13))
sketch5.addConstraint(Sketcher.Constraint("Horizontal", 14))
sketch5.addConstraint(Sketcher.Constraint("Vertical", 15))
sketch5.addConstraint(Sketcher.Constraint("Coincident", 6, 3, 2, 3))
sketch5.addConstraint(Sketcher.Constraint("Coincident", 12, 3, 8, 3))
sketch5.addConstraint(Sketcher.Constraint("Equal", 6, 8))
sketch5.addConstraint(Sketcher.Constraint("Equal", 2, 12))
sketch5.addConstraint(Sketcher.Constraint("Symmetric", 3, 2, 10, 2, -1, 1))
sketch5.addConstraint(Sketcher.Constraint("Symmetric", 2, 3, 8, 3, -2))
sketch5.addConstraint(Sketcher.Constraint("Horizontal", 12, 3, 1, 2))
sketch5.addConstraint(Sketcher.Constraint("Horizontal", 7, 2, 13, 2))
sketch5.addConstraint(Sketcher.Constraint("Vertical", 6, 3, 2, 2))
sketch5.addConstraint(Sketcher.Constraint("Radius", 2, 0.399999))
sketch5.addConstraint(Sketcher.Constraint("Radius", 6, 0.15))
sketch5.addConstraint(Sketcher.Constraint("DistanceY", 1, 2, 1, 1, 1.4))
sketch5.addConstraint(Sketcher.Constraint("DistanceX", 3, 1, 3, 2, 0.74))
sketch5.addConstraint(Sketcher.Constraint("DistanceX", 3, 2, -1, 1, 1.4))
sketch5.addConstraint(Sketcher.Constraint("DistanceX", 11, 1, 11, 2, 0.739994))
pad5 = doc.addObject("PartDesign::Pad", "Pad004")
body5.addObject(pad5)
pad5.Profile = sketch5
pad5.Length = 0.5
pad5.Midplane = True
body6 = doc.addObject("PartDesign::Body", "Body005")

sketch6 = doc.addObject("Sketcher::SketchObject", "Sketch005")
body6.addObject(sketch6)
sketch6.AttachmentSupport = (doc.getObject("XY_Plane005"), [""])
sketch6.MapMode = "FlatFace"
sketch6.AttachmentOffset = App.Placement(V(0, 0, 5.6), App.Rotation())
sketch6.addGeometry(Part.LineSegment(V(-1.8, 3.8, 0), V(2.2, 3.8, 0)), False)
sketch6.addGeometry(Part.ArcOfCircle(Part.Circle(V(2.2, 4, 0), V(0, 0, 1), 0.2), math.radians(-90), math.radians(90)), False)
sketch6.addGeometry(Part.LineSegment(V(2.2, 4.2, 0), V(-1.8, 4.2, 0)), False)
sketch6.addGeometry(Part.ArcOfCircle(Part.Circle(V(-1.8, 4, 0), V(0, 0, 1), 0.2), math.radians(90), math.radians(270)), False)
sketch6.addConstraint(Sketcher.Constraint("Tangent", 0, 2, 1, 1))
sketch6.addConstraint(Sketcher.Constraint("Tangent", 1, 2, 2, 1))
sketch6.addConstraint(Sketcher.Constraint("Tangent", 2, 2, 3, 1))
sketch6.addConstraint(Sketcher.Constraint("Tangent", 3, 2, 0, 1))
sketch6.addConstraint(Sketcher.Constraint("Horizontal", 0))
sketch6.addConstraint(Sketcher.Constraint("Horizontal", 2))
sketch6.addConstraint(Sketcher.Constraint("Radius", 1, 0.2))
sketch6.addConstraint(Sketcher.Constraint("DistanceX", 0, 1, 0, 2, 4.0))
sketch6.addConstraint(Sketcher.Constraint("DistanceY", -1, 1, 1, 3, 4.0))
sketch6.addConstraint(Sketcher.Constraint("DistanceX", -1, 1, 1, 3, 2.2))
pad6 = doc.addObject("PartDesign::Pad", "Pad005")
body6.addObject(pad6)
pad6.Profile = sketch6
pad6.Length = 0.2
body7 = doc.addObject("PartDesign::Body", "Body006")

sketch7 = doc.addObject("Sketcher::SketchObject", "Sketch006")
body7.addObject(sketch7)
sketch7.AttachmentSupport = (doc.getObject("XY_Plane006"), [""])
sketch7.MapMode = "FlatFace"
sketch7.AttachmentOffset = App.Placement(V(0, 0, 0.85), App.Rotation())
add_polygon(sketch7, [(4, 5), (-3, 5), (-3, -5), (4, -5)])
sketch7.addConstraint(Sketcher.Constraint("Horizontal", 0))
sketch7.addConstraint(Sketcher.Constraint("Vertical", 1))
sketch7.addConstraint(Sketcher.Constraint("Horizontal", 2))
sketch7.addConstraint(Sketcher.Constraint("Vertical", 3))
sketch7.addConstraint(Sketcher.Constraint("DistanceY", 1, 2, 1, 1, 10.0))
sketch7.addConstraint(Sketcher.Constraint("DistanceX", 0, 2, 0, 1, 6.5))
sketch7.addConstraint(Sketcher.Constraint("DistanceX", 0, 2, -1, 1, 3.0))
sketch7.addConstraint(Sketcher.Constraint("DistanceY", -1, 1, 0, 2, 5.0))
pad7 = doc.addObject("PartDesign::Pad", "Pad006")
body7.addObject(pad7)
pad7.Profile = sketch7
pad7.Length = 4.8
doc.recompute()

fillet = doc.addObject("PartDesign::Fillet", "Fillet")
body7.addObject(fillet)
fillet.Base = (pad7, edges_at(pad7, [
    (-3, 0, 5.65),
    (0.25, -5, 5.65),
    (3.5, 0, 5.65),
    (0.25, 5, 5.65),
]))
fillet.Radius = 0.2
doc.recompute()

boolean = doc.addObject("PartDesign::Boolean", "Boolean")
body7.addObject(boolean)
boolean.Type = "Fuse"
boolean.addObjects([body])
doc.recompute()

boolean2 = doc.addObject("PartDesign::Boolean", "Boolean001")
body7.addObject(boolean2)
boolean2.Type = "Fuse"
boolean2.addObjects([body2])
doc.recompute()

boolean3 = doc.addObject("PartDesign::Boolean", "Boolean002")
body7.addObject(boolean3)
boolean3.Type = "Fuse"
boolean3.addObjects([body3])
doc.recompute()

boolean4 = doc.addObject("PartDesign::Boolean", "Boolean003")
body7.addObject(boolean4)
boolean4.Type = "Fuse"
boolean4.addObjects([body4])
doc.recompute()

boolean5 = doc.addObject("PartDesign::Boolean", "Boolean004")
body7.addObject(boolean5)
boolean5.Type = "Fuse"
boolean5.addObjects([body5])
doc.recompute()

boolean6 = doc.addObject("PartDesign::Boolean", "Boolean005")
body7.addObject(boolean6)
boolean6.Type = "Fuse"
boolean6.addObjects([body6])

doc.recompute()
